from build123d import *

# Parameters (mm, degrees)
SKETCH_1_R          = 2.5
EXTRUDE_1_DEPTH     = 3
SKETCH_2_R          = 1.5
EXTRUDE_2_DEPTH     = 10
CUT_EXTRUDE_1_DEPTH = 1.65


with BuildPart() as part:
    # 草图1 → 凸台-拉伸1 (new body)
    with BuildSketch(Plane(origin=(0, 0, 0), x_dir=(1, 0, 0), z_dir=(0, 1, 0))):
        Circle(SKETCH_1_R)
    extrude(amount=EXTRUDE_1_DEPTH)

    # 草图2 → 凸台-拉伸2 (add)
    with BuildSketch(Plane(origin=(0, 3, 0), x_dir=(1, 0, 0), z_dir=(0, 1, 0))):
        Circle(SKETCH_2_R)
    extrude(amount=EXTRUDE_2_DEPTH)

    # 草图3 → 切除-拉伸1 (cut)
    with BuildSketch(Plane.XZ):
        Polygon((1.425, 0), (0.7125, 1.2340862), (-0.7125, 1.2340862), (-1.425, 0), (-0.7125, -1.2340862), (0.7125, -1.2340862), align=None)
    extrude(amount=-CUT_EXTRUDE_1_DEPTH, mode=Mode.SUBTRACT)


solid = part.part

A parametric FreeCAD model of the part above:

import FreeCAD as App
import Part
import Sketcher
from FreeCAD import Vector
Q = App.Units.Quantity


def add_polygon(sketch, points):
    """Adds a closed chain of lines whose ends are joined by coincident constraints."""
    first, n = sketch.GeometryCount, len(points)
    for a, b in zip(points, points[1:] + points[:1]):
        sketch.addGeometry(Part.LineSegment(App.Vector(*a, 0), App.Vector(*b, 0)), False)
    for i in range(n):
        sketch.addConstraint(Sketcher.Constraint("Coincident", first + i, 2, first + (i + 1) % n, 1))

doc = App.newDocument("Part")
body = doc.addObject("PartDesign::Body", "Body")

# Sketch on XZ plane
sketch1 = body.newObject("Sketcher::SketchObject", "Sketch")
sketch1.AttachmentSupport = (doc.getObject("XZ_Plane"), [""])
sketch1.MapMode = "FlatFace"
sketch1.addGeometry(Part.Circle(Vector(0, 0, 0), Vector(0, 0, 1), 2.5), False)
sketch1.addConstraint([
    Sketcher.Constraint("Coincident", 0, 3, -1, 1),
    Sketcher.Constraint("Diameter", 0, 5.0),
])
pad1 = body.newObject("PartDesign::Pad", "Pad")
pad1.Profile = sketch1
pad1.Length = 3
pad1.Reversed = True

# Sketch on XZ plane
sketch2 = body.newObject("Sketcher::SketchObject", "Sketch001")
sketch2.AttachmentSupport = (doc.getObject("XZ_Plane"), [""])
sketch2.MapMode = "FlatFace"
sketch2.AttachmentOffset = App.Placement(Vector(0, 0, -3), App.Rotation())
sketch2.addGeometry(Part.Circle(Vector(0, 0, 0), Vector(0, 0, 1), 1.5), False)
sketch2.addConstraint([
    Sketcher.Constraint("Coincident", 0, 3, -1, 1),
    Sketcher.Constraint("Diameter", 0, 3.0),
])
pad2 = body.newObject("PartDesign::Pad", "Pad001")
pad2.Profile = sketch2
pad2.Length = 10
pad2.Reversed = True

# Sketch on XZ plane
sketch3 = body.newObject("Sketcher::SketchObject", "Sketch002")
sketch3.AttachmentSupport = (doc.getObject("XZ_Plane"), [""])
sketch3.MapMode = "FlatFace"
add_polygon(sketch3, [(1.4, 0), (0.7, 1.2), (-0.7, 1.2), (-1.4, 0), (-0.7, -1.2), (0.7, -1.2)])  # lines 0-5
sketch3.addConstraint([
    Sketcher.Constraint("Horizontal", 1),
    Sketcher.Constraint("Horizontal", 4),
    Sketcher.Constraint("Symmetric", 0, 2, 3, 2, -1, 1),
    Sketcher.Constraint("Symmetric", 2, 2, 5, 2, -1, 1),
    Sketcher.Constraint("PointOnObject", 2, 2, -1),
    Sketcher.Constraint("Parallel", 2, 5),
    Sketcher.Constraint("Vertical", 1, 2, 3, 2),
    Sketcher.Constraint("Angle", 0, Q("120 deg")),
    Sketcher.Constraint("DistanceX", 1, 2, 1, 1, 1.425),
    Sketcher.Constraint("DistanceX", 2, 2, 5, 2, 2.85),
])
pocket1 = body.newObject("PartDesign::Pocket", "Pocket")
pocket1.Profile = sketch3
pocket1.Length = 1.65

doc.recompute()
